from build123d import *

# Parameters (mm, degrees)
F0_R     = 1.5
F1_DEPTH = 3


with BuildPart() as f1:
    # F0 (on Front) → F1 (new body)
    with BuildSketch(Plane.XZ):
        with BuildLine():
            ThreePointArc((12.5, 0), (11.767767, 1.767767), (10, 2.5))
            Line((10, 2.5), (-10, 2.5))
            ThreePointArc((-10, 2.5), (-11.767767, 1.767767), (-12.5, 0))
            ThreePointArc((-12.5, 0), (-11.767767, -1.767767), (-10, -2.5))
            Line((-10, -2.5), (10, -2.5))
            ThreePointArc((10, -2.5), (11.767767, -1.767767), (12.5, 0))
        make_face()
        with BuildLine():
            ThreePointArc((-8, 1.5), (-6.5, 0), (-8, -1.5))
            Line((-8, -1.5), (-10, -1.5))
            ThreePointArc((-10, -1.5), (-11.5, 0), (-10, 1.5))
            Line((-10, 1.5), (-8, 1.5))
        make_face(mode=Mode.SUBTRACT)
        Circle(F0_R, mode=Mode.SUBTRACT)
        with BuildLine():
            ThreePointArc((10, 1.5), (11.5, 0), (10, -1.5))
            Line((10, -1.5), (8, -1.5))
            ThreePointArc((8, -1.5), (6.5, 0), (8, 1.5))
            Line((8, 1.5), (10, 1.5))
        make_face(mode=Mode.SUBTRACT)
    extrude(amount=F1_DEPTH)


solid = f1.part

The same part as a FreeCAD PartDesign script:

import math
import FreeCAD as App
import Part
import Sketcher

V = App.Vector
Q = App.Units.Quantity

doc = App.newDocument("Part")
params = doc.addObject("Spreadsheet::Sheet", "Params")
for row, (alias, value) in enumerate([
    ("sketch1_diameter", "3 mm"),
    ("sketch1_radius", "2.5 mm"),
    ("sketch1_width", "20 mm"),
    ("sketch1_width2", "2 mm"),
    ("pad1_length", "3 mm"),
], start=1):
    params.set(f"A{row}", alias)
    params.set(f"B{row}", "=" + value)
    params.setAlias(f"B{row}", alias)

body = doc.addObject("PartDesign::Body", "Body")

sketch1 = doc.addObject("Sketcher::SketchObject", "Sketch")
body.addObject(sketch1)
sketch1.AttachmentSupport = (doc.XZ_Plane, [""])
sketch1.MapMode = "FlatFace"
sketch1.addGeometry(Part.ArcOfCircle(Part.Circle(V(10, 0, 0), V(0, 0, 1), 2.5), math.radians(0), math.radians(90)), False)
sketch1.addGeometry(Part.LineSegment(V(10, 2.5, 0), V(-10, 2.5, 0)), False)
sketch1.addGeometry(Part.ArcOfCircle(Part.Circle(V(-10, 0, 0), V(0, 0, 1), 2.5), math.radians(90), math.radians(180)), False)
sketch1.addGeometry(Part.ArcOfCircle(Part.Circle(V(-10, 0, 0), V(0, 0, 1), 2.5), math.radians(180), math.radians(270)), False)
sketch1.addGeometry(Part.LineSegment(V(-10, -2.5, 0), V(10, -2.5, 0)), False)
sketch1.addGeometry(Part.ArcOfCircle(Part.Circle(V(10, 0, 0), V(0, 0, 1), 2.5), math.radians(-90), math.radians(0)), False)
sketch1.addGeometry(Part.LineSegment(V(-10, 1.5, 0), V(-8, 1.5, 0)), False)
sketch1.addGeometry(Part.ArcOfCircle(Part.Circle(V(-8, 0, 0), V(0, 0, 1), 1.5), math.radians(-90), math.radians(90)), False)
sketch1.addGeometry(Part.LineSegment(V(-8, -1.5, 0), V(-10, -1.5, 0)), False)
sketch1.addGeometry(Part.ArcOfCircle(Part.Circle(V(-10, 0, 0), V(0, 0, 1), 1.5), math.radians(90), math.radians(270)), False)
sketch1.addGeometry(Part.Circle(V(0, 0, 0), V(0, 0, 1), 1.5), False)
sketch1.addGeometry(Part.LineSegment(V(8, 1.5, 0), V(10, 1.5, 0)), False)
sketch1.addGeometry(Part.ArcOfCircle(Part.Circle(V(10, 0, 0), V(0, 0, 1), 1.5), math.radians(-90), math.radians(90)), False)
sketch1.addGeometry(Part.LineSegment(V(10, -1.5, 0), V(8, -1.5, 0)), False)
sketch1.addGeometry(Part.ArcOfCircle(Part.Circle(V(8, 0, 0), V(0, 0, 1), 1.5), math.radians(90), math.radians(270)), False)
sketch1.addConstraint(Sketcher.Constraint("Tangent", 0, 2, 1, 1))
sketch1.addConstraint(Sketcher.Constraint("Tangent", 1, 2, 2, 1))
sketch1.addConstraint(Sketcher.Constraint("Tangent", 2, 2, 3, 1))
sketch1.addConstraint(Sketcher.Constraint("Tangent", 3, 2, 4, 1))
sketch1.addConstraint(Sketcher.Constraint("Tangent", 4, 2, 5, 1))
sketch1.addConstraint(Sketcher.Constraint("Tangent", 5, 2, 0, 1))
sketch1.addConstraint(Sketcher.Constraint("Tangent", 6, 2, 7, 2))
sketch1.addConstraint(Sketcher.Constraint("Tangent", 7, 1, 8, 1))
sketch1.addConstraint(Sketcher.Constraint("Tangent", 8, 2, 9, 2))
sketch1.addConstraint(Sketcher.Constraint("Tangent", 9, 1, 6, 1))
sketch1.addConstraint(Sketcher.Constraint("Tangent", 11, 2, 12, 2))
sketch1.addConstraint(Sketcher.Constraint("Tangent", 12, 1, 13, 1))
sketch1.addConstraint(Sketcher.Constraint("Tangent", 13, 2, 14, 2))
sketch1.addConstraint(Sketcher.Constraint("Tangent", 14, 1, 11, 1))
sketch1.addConstraint(Sketcher.Constraint("Horizontal", 1))
sketch1.addConstraint(Sketcher.Constraint("Horizontal", 4))
sketch1.addConstraint(Sketcher.Constraint("Horizontal", 6))
sketch1.addConstraint(Sketcher.Constraint("Horizontal", 8))
sketch1.addConstraint(Sketcher.Constraint("Horizontal", 11))
sketch1.addConstraint(Sketcher.Constraint("Horizontal", 13))
sketch1.addConstraint(Sketcher.Constraint("Coincident", 10, 3, -1, 1))
sketch1.addConstraint(Sketcher.Constraint("Coincident", 9, 3, 2, 3))
sketch1.addConstraint(Sketcher.Constraint("Coincident", 12, 3, 0, 3))
sketch1.addConstraint(Sketcher.Constraint("Equal", 0, 2))
sketch1.addConstraint(Sketcher.Constraint("Equal", 2, 3))
sketch1.addConstraint(Sketcher.Constraint("Equal", 9, 10))
sketch1.addConstraint(Sketcher.Constraint("Equal", 10, 12))
sketch1.addConstraint(Sketcher.Constraint("Symmetric", 0, 3, 2, 3, -1, 1))
sketch1.addConstraint(Sketcher.Constraint("PointOnObject", 2, 2, -1))
sketch1.addConstraint(Sketcher.Constraint("PointOnObject", 5, 2, -1))
sketch1.addConstraint(Sketcher.Constraint("Equal", 8, 11))
sketch1.addConstraint(Sketcher.Constraint("Diameter", 10, Q("3 mm")))
sketch1.addConstraint(Sketcher.Constraint("Radius", 0, Q("2.5 mm")))
sketch1.addConstraint(Sketcher.Constraint("DistanceX", 1, 2, 1, 1, Q("20 mm")))
sketch1.addConstraint(Sketcher.Constraint("DistanceX", 6, 1, 6, 2, Q("2 mm")))
sketch1.setExpression("Constraints[31]", "Params.sketch1_diameter")
sketch1.setExpression("Constraints[32]", "Params.sketch1_radius")
sketch1.setExpression("Constraints[33]", "Params.sketch1_width")
sketch1.setExpression("Constraints[34]", "Params.sketch1_width2")
pad1 = doc.addObject("PartDesign::Pad", "Pad")
body.addObject(pad1)
pad1.Profile = sketch1
pad1.setExpression("Length", "Params.pad1_length")

doc.recompute()
